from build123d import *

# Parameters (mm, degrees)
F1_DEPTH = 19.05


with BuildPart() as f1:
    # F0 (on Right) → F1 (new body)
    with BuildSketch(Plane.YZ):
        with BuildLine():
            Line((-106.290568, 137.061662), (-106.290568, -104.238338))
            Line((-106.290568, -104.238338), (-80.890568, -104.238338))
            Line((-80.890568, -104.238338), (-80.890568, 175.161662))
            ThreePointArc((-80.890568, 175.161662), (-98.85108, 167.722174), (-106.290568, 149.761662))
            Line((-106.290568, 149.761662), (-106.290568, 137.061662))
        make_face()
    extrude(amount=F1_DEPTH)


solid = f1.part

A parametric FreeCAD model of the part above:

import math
import FreeCAD as App
import Part
import Sketcher

V = App.Vector
Q = App.Units.Quantity

doc = App.newDocument("Part")
body = doc.addObject("PartDesign::Body", "Body")

sketch1 = body.newObject("Sketcher::SketchObject", "Sketch")
sketch1.AttachmentSupport = (doc.getObject("YZ_Plane"), [""])
sketch1.MapMode = "FlatFace"
sketch1.addGeometry(Part.LineSegment(V(-106, -104, 0), V(-81, -104, 0)), False)
sketch1.addGeometry(Part.LineSegment(V(-81, -104, 0), V(-81, 175, 0)), False)
sketch1.addGeometry(Part.ArcOfCircle(Part.Circle(V(-81, 150, 0), V(0, 0, 1), 25), math.radians(90), math.radians(180)), False)
sketch1.addGeometry(Part.LineSegment(V(-106, 150, 0), V(-106, -104, 0)), False)
sketch1.addConstraint(Sketcher.Constraint("Coincident", 0, 2, 1, 1))
sketch1.addConstraint(Sketcher.Constraint("Coincident", 1, 2, 2, 1))
sketch1.addConstraint(Sketcher.Constraint("Tangent", 2, 2, 3, 1))
sketch1.addConstraint(Sketcher.Constraint("Coincident", 3, 2, 0, 1))
sketch1.addConstraint(Sketcher.Constraint("Horizontal", 0))
sketch1.addConstraint(Sketcher.Constraint("Vertical", 1))
sketch1.addConstraint(Sketcher.Constraint("Vertical", 3))
sketch1.addConstraint(Sketcher.Constraint("Vertical", 2, 3, 0, 2))
sketch1.addConstraint(Sketcher.Constraint("Radius", 2, Q("1 in")))
sketch1.addConstraint(Sketcher.Constraint("DistanceY", 1, 1, 1, 2, Q("11 in")))
sketch1.addConstraint(Sketcher.Constraint("DistanceY", -1, 1, 2, 3, Q("149.761661 mm")))
sketch1.addConstraint(Sketcher.Constraint("DistanceX", 0, 2, -1, 1, Q("80.890568 mm")))
pad1 = body.newObject("PartDesign::Pad", "Pad")
pad1.Profile = sketch1
pad1.Length = Q("0.75 in")

doc.recompute()
